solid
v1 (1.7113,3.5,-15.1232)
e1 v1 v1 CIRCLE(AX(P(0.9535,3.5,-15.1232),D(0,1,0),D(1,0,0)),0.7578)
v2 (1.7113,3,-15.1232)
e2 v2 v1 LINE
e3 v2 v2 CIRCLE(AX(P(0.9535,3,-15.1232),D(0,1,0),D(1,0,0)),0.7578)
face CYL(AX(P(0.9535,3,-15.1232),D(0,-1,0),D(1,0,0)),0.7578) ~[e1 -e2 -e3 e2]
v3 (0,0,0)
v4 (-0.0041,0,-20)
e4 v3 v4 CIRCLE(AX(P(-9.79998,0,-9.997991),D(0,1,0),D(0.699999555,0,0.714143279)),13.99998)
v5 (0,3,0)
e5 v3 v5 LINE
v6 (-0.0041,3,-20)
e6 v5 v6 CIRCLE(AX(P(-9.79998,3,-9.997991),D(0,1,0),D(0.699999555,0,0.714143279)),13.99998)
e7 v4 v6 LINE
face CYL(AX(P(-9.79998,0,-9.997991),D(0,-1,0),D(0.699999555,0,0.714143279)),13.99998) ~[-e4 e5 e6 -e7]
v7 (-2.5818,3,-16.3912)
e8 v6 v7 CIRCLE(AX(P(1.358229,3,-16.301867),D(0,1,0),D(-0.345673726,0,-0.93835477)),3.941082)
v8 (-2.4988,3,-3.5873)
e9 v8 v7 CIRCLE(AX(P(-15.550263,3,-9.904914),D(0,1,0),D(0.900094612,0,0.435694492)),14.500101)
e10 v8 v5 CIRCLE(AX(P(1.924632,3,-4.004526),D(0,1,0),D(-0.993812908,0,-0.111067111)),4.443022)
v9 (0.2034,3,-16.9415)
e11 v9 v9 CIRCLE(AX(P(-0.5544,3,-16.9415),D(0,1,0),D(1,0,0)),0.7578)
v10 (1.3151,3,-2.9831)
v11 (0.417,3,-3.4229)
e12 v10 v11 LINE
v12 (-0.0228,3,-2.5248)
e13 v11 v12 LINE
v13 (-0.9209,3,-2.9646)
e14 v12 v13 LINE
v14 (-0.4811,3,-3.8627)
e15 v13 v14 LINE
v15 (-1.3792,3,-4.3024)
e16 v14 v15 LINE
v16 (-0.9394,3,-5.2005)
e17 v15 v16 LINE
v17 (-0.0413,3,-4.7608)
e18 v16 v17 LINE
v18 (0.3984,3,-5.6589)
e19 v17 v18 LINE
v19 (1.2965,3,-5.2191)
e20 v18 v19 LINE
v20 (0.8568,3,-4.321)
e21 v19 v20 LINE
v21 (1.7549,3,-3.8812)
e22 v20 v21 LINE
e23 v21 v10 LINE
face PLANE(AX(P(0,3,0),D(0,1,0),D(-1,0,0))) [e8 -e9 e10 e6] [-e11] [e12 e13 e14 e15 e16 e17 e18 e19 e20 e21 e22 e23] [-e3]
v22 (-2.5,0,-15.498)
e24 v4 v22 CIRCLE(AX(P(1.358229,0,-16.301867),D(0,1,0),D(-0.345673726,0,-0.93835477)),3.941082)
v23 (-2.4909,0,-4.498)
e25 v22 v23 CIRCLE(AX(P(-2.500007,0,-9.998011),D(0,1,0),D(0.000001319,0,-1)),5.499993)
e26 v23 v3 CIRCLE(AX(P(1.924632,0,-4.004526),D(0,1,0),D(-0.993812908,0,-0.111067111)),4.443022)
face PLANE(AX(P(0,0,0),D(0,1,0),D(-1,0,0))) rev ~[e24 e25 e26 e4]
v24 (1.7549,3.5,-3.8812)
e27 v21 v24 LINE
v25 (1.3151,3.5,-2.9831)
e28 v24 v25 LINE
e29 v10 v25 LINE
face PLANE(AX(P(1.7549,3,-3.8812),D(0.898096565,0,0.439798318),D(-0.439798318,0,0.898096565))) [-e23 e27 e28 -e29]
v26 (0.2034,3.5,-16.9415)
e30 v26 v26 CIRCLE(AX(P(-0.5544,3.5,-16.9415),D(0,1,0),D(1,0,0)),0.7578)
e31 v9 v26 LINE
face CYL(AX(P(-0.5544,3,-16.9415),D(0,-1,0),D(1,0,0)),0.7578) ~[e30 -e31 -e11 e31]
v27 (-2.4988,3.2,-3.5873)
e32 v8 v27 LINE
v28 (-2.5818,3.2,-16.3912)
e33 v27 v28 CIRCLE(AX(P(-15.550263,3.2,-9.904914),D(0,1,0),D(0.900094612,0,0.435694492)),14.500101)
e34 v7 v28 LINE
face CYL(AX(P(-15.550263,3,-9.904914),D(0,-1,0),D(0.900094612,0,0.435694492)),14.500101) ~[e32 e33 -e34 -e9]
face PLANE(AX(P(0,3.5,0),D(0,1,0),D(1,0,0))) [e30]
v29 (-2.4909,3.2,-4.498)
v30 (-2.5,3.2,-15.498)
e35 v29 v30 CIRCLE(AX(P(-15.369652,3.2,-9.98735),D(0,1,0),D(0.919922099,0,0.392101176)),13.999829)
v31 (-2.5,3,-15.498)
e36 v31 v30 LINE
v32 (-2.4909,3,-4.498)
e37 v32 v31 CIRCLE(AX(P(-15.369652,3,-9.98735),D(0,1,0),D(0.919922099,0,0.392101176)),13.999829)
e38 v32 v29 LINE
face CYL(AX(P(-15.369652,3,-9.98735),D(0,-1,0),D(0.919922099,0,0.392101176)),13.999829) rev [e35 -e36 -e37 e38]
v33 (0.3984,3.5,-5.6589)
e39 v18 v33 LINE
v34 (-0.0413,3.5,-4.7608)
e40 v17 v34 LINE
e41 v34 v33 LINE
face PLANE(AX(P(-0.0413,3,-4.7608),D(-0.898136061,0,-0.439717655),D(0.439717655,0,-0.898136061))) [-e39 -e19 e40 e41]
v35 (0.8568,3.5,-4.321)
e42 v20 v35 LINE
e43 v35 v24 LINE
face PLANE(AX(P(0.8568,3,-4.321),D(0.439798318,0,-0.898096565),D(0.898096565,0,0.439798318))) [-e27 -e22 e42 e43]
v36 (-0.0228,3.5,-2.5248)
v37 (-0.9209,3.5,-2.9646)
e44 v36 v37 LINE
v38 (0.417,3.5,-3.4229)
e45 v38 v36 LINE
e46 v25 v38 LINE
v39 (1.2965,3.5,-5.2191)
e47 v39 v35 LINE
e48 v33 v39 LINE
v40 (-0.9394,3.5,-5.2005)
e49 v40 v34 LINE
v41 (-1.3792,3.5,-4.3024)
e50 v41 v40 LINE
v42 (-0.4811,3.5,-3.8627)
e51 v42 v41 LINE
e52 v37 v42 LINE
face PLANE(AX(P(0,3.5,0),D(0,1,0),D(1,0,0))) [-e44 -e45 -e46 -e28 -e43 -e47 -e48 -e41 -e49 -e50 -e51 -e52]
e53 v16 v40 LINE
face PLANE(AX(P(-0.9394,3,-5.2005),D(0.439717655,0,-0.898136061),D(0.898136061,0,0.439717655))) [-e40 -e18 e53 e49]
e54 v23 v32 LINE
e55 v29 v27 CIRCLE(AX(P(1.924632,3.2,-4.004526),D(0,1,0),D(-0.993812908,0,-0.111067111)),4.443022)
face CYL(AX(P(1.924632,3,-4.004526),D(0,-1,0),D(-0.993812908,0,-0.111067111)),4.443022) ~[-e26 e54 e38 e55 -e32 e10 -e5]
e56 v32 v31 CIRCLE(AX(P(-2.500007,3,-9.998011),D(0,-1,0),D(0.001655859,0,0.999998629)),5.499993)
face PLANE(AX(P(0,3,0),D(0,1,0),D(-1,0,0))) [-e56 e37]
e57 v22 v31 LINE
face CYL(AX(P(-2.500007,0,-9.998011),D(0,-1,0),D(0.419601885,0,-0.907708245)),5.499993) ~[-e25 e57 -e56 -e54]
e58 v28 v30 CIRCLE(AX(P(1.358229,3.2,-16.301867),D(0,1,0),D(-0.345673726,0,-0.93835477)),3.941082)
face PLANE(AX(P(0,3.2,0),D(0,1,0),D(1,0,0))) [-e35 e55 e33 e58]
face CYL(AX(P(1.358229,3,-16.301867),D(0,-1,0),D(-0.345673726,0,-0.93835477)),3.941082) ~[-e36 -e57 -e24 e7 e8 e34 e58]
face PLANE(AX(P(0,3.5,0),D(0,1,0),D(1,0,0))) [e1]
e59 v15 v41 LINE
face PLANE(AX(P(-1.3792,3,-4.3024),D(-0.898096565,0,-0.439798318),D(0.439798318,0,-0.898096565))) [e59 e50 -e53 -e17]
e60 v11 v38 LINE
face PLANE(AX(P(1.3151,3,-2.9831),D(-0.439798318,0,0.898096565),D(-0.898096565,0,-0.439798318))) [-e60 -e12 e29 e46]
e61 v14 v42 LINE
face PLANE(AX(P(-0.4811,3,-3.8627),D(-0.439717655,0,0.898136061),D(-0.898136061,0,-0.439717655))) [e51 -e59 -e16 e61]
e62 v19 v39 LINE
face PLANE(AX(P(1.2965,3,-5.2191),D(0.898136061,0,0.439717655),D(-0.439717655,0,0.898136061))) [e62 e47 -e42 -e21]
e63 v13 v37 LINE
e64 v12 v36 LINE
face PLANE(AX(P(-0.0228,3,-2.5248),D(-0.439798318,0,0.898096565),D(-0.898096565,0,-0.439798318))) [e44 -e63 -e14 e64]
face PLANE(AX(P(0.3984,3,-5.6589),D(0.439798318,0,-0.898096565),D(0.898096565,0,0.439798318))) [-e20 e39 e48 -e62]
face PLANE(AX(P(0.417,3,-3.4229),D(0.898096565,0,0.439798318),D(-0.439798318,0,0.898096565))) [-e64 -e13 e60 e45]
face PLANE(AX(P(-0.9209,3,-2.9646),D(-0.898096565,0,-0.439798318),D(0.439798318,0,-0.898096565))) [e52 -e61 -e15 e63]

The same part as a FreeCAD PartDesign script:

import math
import FreeCAD as App
import Part
import Sketcher
from FreeCAD import Vector
Q = App.Units.Quantity


def add_polygon(sketch, points):
    """Adds a closed chain of lines whose ends are joined by coincident constraints."""
    first, n = sketch.GeometryCount, len(points)
    for a, b in zip(points, points[1:] + points[:1]):
        sketch.addGeometry(Part.LineSegment(App.Vector(*a, 0), App.Vector(*b, 0)), False)
    for i in range(n):
        sketch.addConstraint(Sketcher.Constraint("Coincident", first + i, 2, first + (i + 1) % n, 1))

doc = App.newDocument("Part")
body = doc.addObject("PartDesign::Body", "Body")

sketch1 = doc.addObject("Sketcher::SketchObject", "Sketch")
body.addObject(sketch1)
sketch1.AttachmentSupport = (doc.XZ_Plane, [""])
sketch1.MapMode = "FlatFace"
sketch1.addGeometry([
    Part.ArcOfCircle(Part.Circle(Vector(1.9245, -4.0045, 0), Vector(0, 0, 1), 4.442893), math.radians(115.668211), math.radians(186.377362)),
    Part.ArcOfCircle(Part.Circle(Vector(-9.8, -9.998, 0), Vector(0, 0, 1), 14), math.radians(-45.596439), math.radians(45.572997)),
    Part.ArcOfCircle(Part.Circle(Vector(1.3582, -16.3019, 0), Vector(0, 0, 1), 3.941041), math.radians(168.230169), math.radians(249.777295)),
    Part.ArcOfCircle(Part.Circle(Vector(-2.5, -9.998, 0), Vector(0, 0, 1), 5.5), math.radians(89.905202), math.radians(270)),
], False)
sketch1.addConstraint([
    Sketcher.Constraint("Coincident", 0, 1, 1, 2),
    Sketcher.Constraint("Coincident", 1, 1, 2, 2),
    Sketcher.Constraint("Coincident", 2, 1, 3, 2),
    Sketcher.Constraint("Coincident", 3, 1, 0, 2),
    Sketcher.Constraint("Coincident", 0, 1, -1, 1),
    Sketcher.Constraint("Horizontal", 1, 3, 3, 3),
    Sketcher.Constraint("Vertical", 3, 3, 2, 1),
    Sketcher.Constraint("Radius", 3, Q("5.5 mm")),
    Sketcher.Constraint("DistanceY", 1, 1, -1, 1, Q("20 mm")),
    Sketcher.Constraint("Radius", 1, Q("14 mm")),
    Sketcher.Constraint("DistanceX", 3, 3, -1, 1, Q("2.5 mm")),
    Sketcher.Constraint("DistanceX", 1, 3, 3, 3, Q("7.3 mm")),
    Sketcher.Constraint("Radius", 0, Q("4.443 mm")),
    Sketcher.Constraint("Radius", 2, Q("3.941 mm")),
    Sketcher.Constraint("DistanceX", 3, 1, -1, 1, Q("2.491 mm")),
])
pad1 = doc.addObject("PartDesign::Pad", "Pad")
body.addObject(pad1)
pad1.Profile = sketch1
pad1.Length = 3
pad1.Reversed = True

sketch2 = doc.addObject("Sketcher::SketchObject", "Sketch001")
body.addObject(sketch2)
sketch2.AttachmentSupport = (doc.XZ_Plane, [""])
sketch2.MapMode = "FlatFace"
sketch2.AttachmentOffset = App.Placement(Vector(0, 0, -3), App.Rotation())
sketch2.addGeometry(Part.Circle(Vector(-0.5544, -16.9415, 0), Vector(0, 0, 1), 0.7578), False)
sketch2.addGeometry(Part.Circle(Vector(0.9535, -15.1232, 0), Vector(0, 0, 1), 0.7578), False)
add_polygon(sketch2, [(-0.9394, -5.2005), (-1.3792, -4.3024), (-0.4811, -3.8627), (-0.9209, -2.9646), (-0.0228, -2.5248), (0.417, -3.4229), (1.3151, -2.9831), (1.7549, -3.8812), (0.8568, -4.321), (1.2965, -5.2191), (0.3984, -5.6589), (-0.0413, -4.7608)])
sketch2.addConstraint([
    Sketcher.Constraint("Equal", 0, 1),
    Sketcher.Constraint("Perpendicular", 2, 3),
    Sketcher.Constraint("Perpendicular", 3, 4),
    Sketcher.Constraint("Perpendicular", 4, 5),
    Sketcher.Constraint("Perpendicular", 5, 6),
    Sketcher.Constraint("Perpendicular", 6, 7),
    Sketcher.Constraint("Perpendicular", 7, 8),
    Sketcher.Constraint("Perpendicular", 8, 9),
    Sketcher.Constraint("Perpendicular", 9, 10),
    Sketcher.Constraint("Perpendicular", 10, 11),
    Sketcher.Constraint("Perpendicular", 11, 12),
    Sketcher.Constraint("Perpendicular", 12, 13),
    Sketcher.Constraint("Equal", 2, 3),
    Sketcher.Constraint("Equal", 3, 4),
    Sketcher.Constraint("Equal", 4, 5),
    Sketcher.Constraint("Equal", 5, 6),
    Sketcher.Constraint("Equal", 6, 7),
    Sketcher.Constraint("Equal", 7, 8),
    Sketcher.Constraint("Equal", 8, 9),
    Sketcher.Constraint("Equal", 9, 10),
    Sketcher.Constraint("Equal", 10, 11),
    Sketcher.Constraint("Distance", 2, Q("1 mm")),
    Sketcher.Constraint("Diameter", 0, Q("1.5156 mm")),
    Sketcher.Constraint("Angle", 2, Q("116.091 deg")),
    Sketcher.Constraint("DistanceX", 3, 2, -1, 1, Q("0.481 mm")),
    Sketcher.Constraint("DistanceY", 6, 2, -1, 1, Q("3.423 mm")),
    Sketcher.Constraint("DistanceX", 0, 3, 1, 3, Q("1.508 mm")),
    Sketcher.Constraint("DistanceY", 0, 3, 2, 2, Q("12.639 mm")),
    Sketcher.Constraint("DistanceX", 0, 3, -1, 1, Q("0.5544 mm")),
    Sketcher.Constraint("DistanceY", 1, 3, -1, 1, Q("15.1232 mm")),
])
pad2 = doc.addObject("PartDesign::Pad", "Pad001")
body.addObject(pad2)
pad2.Profile = sketch2
pad2.Length = 0.5
pad2.Reversed = True

sketch3 = doc.addObject("Sketcher::SketchObject", "Sketch002")
body.addObject(sketch3)
sketch3.AttachmentSupport = (doc.XZ_Plane, [""])
sketch3.MapMode = "FlatFace"
sketch3.AttachmentOffset = App.Placement(Vector(0, 0, -3), App.Rotation())
sketch3.addGeometry([
    Part.ArcOfCircle(Part.Circle(Vector(1.3582, -16.3019, 0), Vector(0, 0, 1), 3.941041), math.radians(168.230169), math.radians(181.298385)),
    Part.ArcOfCircle(Part.Circle(Vector(-15.3699, -9.9874, 0), Vector(0, 0, 1), 14.000077), math.radians(-23.179514), math.radians(23.085097)),
    Part.ArcOfCircle(Part.Circle(Vector(1.9245, -4.0045, 0), Vector(0, 0, 1), 4.442893), math.radians(174.611875), math.radians(186.377362)),
    Part.ArcOfCircle(Part.Circle(Vector(-15.5502, -9.9049, 0), Vector(0, 0, 1), 14.500038), math.radians(-26.572473), math.radians(25.829552)),
], False)
sketch3.addConstraint([
    Sketcher.Constraint("Coincident", 0, 1, 1, 1),
    Sketcher.Constraint("Coincident", 1, 2, 2, 2),
    Sketcher.Constraint("Coincident", 2, 1, 3, 2),
    Sketcher.Constraint("Coincident", 3, 1, 0, 2),
    Sketcher.Constraint("Radius", 1, Q("14 mm")),
    Sketcher.Constraint("Radius", 3, Q("14.5 mm")),
    Sketcher.Constraint("Radius", 0, Q("3.941 mm")),
    Sketcher.Constraint("Radius", 2, Q("4.443 mm")),
    Sketcher.Constraint("DistanceY", 0, 1, 1, 2, Q("11 mm")),
    Sketcher.Constraint("DistanceX", 0, 1, -1, 1, Q("2.5 mm")),
    Sketcher.Constraint("DistanceY", 1, 3, 2, 1, Q("6.4 mm")),
    Sketcher.Constraint("DistanceX", 1, 3, -1, 1, Q("15.37 mm")),
    Sketcher.Constraint("DistanceX", 3, 1, 0, 3, Q("3.94 mm")),
    Sketcher.Constraint("DistanceY", 0, 3, -1, 1, Q("16.302 mm")),
    Sketcher.Constraint("DistanceY", 3, 3, -1, 1, Q("9.905 mm")),
    Sketcher.Constraint("DistanceY", 0, 1, -1, 1, Q("15.498 mm")),
])
pad3 = doc.addObject("PartDesign::Pad", "Pad002")
body.addObject(pad3)
pad3.Profile = sketch3
pad3.Length = 0.2
pad3.Reversed = True

doc.recompute()
